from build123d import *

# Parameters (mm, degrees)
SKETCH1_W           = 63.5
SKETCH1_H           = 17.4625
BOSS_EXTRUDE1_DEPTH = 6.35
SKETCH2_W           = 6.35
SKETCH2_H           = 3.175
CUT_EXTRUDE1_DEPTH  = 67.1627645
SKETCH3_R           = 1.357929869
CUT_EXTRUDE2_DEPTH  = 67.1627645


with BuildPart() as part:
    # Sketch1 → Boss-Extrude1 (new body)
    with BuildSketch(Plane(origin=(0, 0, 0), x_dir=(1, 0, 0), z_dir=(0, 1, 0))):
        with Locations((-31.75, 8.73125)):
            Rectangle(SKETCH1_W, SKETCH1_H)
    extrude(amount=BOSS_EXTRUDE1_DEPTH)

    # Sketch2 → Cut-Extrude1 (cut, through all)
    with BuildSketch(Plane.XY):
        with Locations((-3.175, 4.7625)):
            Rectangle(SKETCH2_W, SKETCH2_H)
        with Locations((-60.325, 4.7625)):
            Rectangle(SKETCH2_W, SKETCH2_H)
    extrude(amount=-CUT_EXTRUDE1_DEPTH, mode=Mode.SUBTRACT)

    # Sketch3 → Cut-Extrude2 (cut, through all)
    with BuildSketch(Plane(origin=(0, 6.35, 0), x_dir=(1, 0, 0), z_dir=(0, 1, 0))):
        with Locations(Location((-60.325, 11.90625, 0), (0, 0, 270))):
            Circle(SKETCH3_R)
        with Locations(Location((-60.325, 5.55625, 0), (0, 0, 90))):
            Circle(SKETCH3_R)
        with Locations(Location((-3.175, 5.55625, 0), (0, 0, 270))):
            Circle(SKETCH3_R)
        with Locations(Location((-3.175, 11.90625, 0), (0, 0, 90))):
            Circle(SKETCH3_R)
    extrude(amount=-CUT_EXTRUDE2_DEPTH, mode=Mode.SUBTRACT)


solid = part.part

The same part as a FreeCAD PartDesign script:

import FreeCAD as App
import Part
import Sketcher

V = App.Vector
Q = App.Units.Quantity


def add_polygon(sketch, points):
    """Adds a closed chain of lines whose ends are joined by coincident constraints."""
    first, n = sketch.GeometryCount, len(points)
    for a, b in zip(points, points[1:] + points[:1]):
        sketch.addGeometry(Part.LineSegment(App.Vector(*a, 0), App.Vector(*b, 0)), False)
    for i in range(n):
        sketch.addConstraint(Sketcher.Constraint("Coincident", first + i, 2, first + (i + 1) % n, 1))

doc = App.newDocument("Part")
body = doc.addObject("PartDesign::Body", "Body")

sketch1 = body.newObject("Sketcher::SketchObject", "Sketch")
sketch1.AttachmentSupport = (doc.getObject("XZ_Plane"), [""])
sketch1.MapMode = "FlatFace"
add_polygon(sketch1, [(-63.5, -17.4625), (-63.5, 0), (0, 0), (0, -17.4625)])
sketch1.addConstraint(Sketcher.Constraint("Vertical", 0))
sketch1.addConstraint(Sketcher.Constraint("Horizontal", 1))
sketch1.addConstraint(Sketcher.Constraint("Vertical", 2))
sketch1.addConstraint(Sketcher.Constraint("Horizontal", 3))
sketch1.addConstraint(Sketcher.Constraint("Coincident", 1, 2, -1, 1))
sketch1.addConstraint(Sketcher.Constraint("DistanceX", 1, 1, 1, 2, Q("2.5 in")))
sketch1.addConstraint(Sketcher.Constraint("DistanceY", 0, 1, 0, 2, Q("0.6875 in")))
pad1 = body.newObject("PartDesign::Pad", "Pad")
pad1.Profile = sketch1
pad1.Length = Q("0.25 in")
pad1.Reversed = True

sketch2 = body.newObject("Sketcher::SketchObject", "Sketch001")
sketch2.AttachmentSupport = (doc.getObject("XY_Plane"), [""])
sketch2.MapMode = "FlatFace"
add_polygon(sketch2, [(-6.35, 6.35), (-6.35, 3.175), (0, 3.175), (0, 6.35)])
add_polygon(sketch2, [(-63.5, 6.35), (-63.5, 3.175), (-57.15, 3.175), (-57.15, 6.35)])
sketch2.addConstraint(Sketcher.Constraint("Vertical", 0))
sketch2.addConstraint(Sketcher.Constraint("Horizontal", 1))
sketch2.addConstraint(Sketcher.Constraint("Vertical", 2))
sketch2.addConstraint(Sketcher.Constraint("Horizontal", 3))
sketch2.addConstraint(Sketcher.Constraint("Vertical", 4))
sketch2.addConstraint(Sketcher.Constraint("Horizontal", 5))
sketch2.addConstraint(Sketcher.Constraint("Vertical", 6))
sketch2.addConstraint(Sketcher.Constraint("Horizontal", 7))
sketch2.addConstraint(Sketcher.Constraint("PointOnObject", 1, 2, -2))
sketch2.addConstraint(Sketcher.Constraint("Horizontal", 1, 2, 4, 2))
sketch2.addConstraint(Sketcher.Constraint("Horizontal", 3, 2, 6, 2))
sketch2.addConstraint(Sketcher.Constraint("Equal", 3, 5))
sketch2.addConstraint(Sketcher.Constraint("DistanceX", 5, 2, 0, 2, Q("2 in")))
sketch2.addConstraint(Sketcher.Constraint("DistanceX", 1, 1, 1, 2, Q("0.25 in")))
sketch2.addConstraint(Sketcher.Constraint("DistanceY", 0, 2, 0, 1, Q("0.125 in")))
sketch2.addConstraint(Sketcher.Constraint("DistanceY", -1, 1, 2, 2, Q("0.25 in")))
pocket1 = body.newObject("PartDesign::Pocket", "Pocket")
pocket1.Profile = sketch2
pocket1.Type = "ThroughAll"

sketch3 = body.newObject("Sketcher::SketchObject", "Sketch002")
sketch3.AttachmentSupport = (doc.getObject("XZ_Plane"), [""])
sketch3.MapMode = "FlatFace"
sketch3.AttachmentOffset = App.Placement(V(0, 0, -0.25 * 25.4), App.Rotation())
sketch3.addGeometry(Part.Circle(V(-60.325, -11.90625, 0), V(0, 0, 1), 1.35793), False)
sketch3.addGeometry(Part.Circle(V(-60.325, -5.55625, 0), V(0, 0, 1), 1.35793), False)
sketch3.addGeometry(Part.Circle(V(-3.175, -5.55625, 0), V(0, 0, 1), 1.35793), False)
sketch3.addGeometry(Part.Circle(V(-3.175, -11.90625, 0), V(0, 0, 1), 1.35793), False)
sketch3.addConstraint(Sketcher.Constraint("Equal", 0, 1))
sketch3.addConstraint(Sketcher.Constraint("Equal", 1, 2))
sketch3.addConstraint(Sketcher.Constraint("Equal", 2, 3))
sketch3.addConstraint(Sketcher.Constraint("Horizontal", 1, 3, 2, 3))
sketch3.addConstraint(Sketcher.Constraint("Horizontal", 0, 3, 3, 3))
sketch3.addConstraint(Sketcher.Constraint("Vertical", 0, 3, 1, 3))
sketch3.addConstraint(Sketcher.Constraint("Vertical", 2, 3, 3, 3))
sketch3.addConstraint(Sketcher.Constraint("DistanceY", 0, 3, 1, 3, Q("0.25 in")))
sketch3.addConstraint(Sketcher.Constraint("DistanceX", 1, 3, 2, 3, Q("2.25 in")))
sketch3.addConstraint(Sketcher.Constraint("Diameter", 0, 2.71586))
sketch3.addConstraint(Sketcher.Constraint("DistanceX", 0, 3, -1, 1, Q("2.375 in")))
sketch3.addConstraint(Sketcher.Constraint("DistanceY", 0, 3, -1, 1, Q("0.46875 in")))
pocket2 = body.newObject("PartDesign::Pocket", "Pocket001")
pocket2.Profile = sketch3
pocket2.Type = "ThroughAll"
pocket2.Reversed = True

doc.recompute()
